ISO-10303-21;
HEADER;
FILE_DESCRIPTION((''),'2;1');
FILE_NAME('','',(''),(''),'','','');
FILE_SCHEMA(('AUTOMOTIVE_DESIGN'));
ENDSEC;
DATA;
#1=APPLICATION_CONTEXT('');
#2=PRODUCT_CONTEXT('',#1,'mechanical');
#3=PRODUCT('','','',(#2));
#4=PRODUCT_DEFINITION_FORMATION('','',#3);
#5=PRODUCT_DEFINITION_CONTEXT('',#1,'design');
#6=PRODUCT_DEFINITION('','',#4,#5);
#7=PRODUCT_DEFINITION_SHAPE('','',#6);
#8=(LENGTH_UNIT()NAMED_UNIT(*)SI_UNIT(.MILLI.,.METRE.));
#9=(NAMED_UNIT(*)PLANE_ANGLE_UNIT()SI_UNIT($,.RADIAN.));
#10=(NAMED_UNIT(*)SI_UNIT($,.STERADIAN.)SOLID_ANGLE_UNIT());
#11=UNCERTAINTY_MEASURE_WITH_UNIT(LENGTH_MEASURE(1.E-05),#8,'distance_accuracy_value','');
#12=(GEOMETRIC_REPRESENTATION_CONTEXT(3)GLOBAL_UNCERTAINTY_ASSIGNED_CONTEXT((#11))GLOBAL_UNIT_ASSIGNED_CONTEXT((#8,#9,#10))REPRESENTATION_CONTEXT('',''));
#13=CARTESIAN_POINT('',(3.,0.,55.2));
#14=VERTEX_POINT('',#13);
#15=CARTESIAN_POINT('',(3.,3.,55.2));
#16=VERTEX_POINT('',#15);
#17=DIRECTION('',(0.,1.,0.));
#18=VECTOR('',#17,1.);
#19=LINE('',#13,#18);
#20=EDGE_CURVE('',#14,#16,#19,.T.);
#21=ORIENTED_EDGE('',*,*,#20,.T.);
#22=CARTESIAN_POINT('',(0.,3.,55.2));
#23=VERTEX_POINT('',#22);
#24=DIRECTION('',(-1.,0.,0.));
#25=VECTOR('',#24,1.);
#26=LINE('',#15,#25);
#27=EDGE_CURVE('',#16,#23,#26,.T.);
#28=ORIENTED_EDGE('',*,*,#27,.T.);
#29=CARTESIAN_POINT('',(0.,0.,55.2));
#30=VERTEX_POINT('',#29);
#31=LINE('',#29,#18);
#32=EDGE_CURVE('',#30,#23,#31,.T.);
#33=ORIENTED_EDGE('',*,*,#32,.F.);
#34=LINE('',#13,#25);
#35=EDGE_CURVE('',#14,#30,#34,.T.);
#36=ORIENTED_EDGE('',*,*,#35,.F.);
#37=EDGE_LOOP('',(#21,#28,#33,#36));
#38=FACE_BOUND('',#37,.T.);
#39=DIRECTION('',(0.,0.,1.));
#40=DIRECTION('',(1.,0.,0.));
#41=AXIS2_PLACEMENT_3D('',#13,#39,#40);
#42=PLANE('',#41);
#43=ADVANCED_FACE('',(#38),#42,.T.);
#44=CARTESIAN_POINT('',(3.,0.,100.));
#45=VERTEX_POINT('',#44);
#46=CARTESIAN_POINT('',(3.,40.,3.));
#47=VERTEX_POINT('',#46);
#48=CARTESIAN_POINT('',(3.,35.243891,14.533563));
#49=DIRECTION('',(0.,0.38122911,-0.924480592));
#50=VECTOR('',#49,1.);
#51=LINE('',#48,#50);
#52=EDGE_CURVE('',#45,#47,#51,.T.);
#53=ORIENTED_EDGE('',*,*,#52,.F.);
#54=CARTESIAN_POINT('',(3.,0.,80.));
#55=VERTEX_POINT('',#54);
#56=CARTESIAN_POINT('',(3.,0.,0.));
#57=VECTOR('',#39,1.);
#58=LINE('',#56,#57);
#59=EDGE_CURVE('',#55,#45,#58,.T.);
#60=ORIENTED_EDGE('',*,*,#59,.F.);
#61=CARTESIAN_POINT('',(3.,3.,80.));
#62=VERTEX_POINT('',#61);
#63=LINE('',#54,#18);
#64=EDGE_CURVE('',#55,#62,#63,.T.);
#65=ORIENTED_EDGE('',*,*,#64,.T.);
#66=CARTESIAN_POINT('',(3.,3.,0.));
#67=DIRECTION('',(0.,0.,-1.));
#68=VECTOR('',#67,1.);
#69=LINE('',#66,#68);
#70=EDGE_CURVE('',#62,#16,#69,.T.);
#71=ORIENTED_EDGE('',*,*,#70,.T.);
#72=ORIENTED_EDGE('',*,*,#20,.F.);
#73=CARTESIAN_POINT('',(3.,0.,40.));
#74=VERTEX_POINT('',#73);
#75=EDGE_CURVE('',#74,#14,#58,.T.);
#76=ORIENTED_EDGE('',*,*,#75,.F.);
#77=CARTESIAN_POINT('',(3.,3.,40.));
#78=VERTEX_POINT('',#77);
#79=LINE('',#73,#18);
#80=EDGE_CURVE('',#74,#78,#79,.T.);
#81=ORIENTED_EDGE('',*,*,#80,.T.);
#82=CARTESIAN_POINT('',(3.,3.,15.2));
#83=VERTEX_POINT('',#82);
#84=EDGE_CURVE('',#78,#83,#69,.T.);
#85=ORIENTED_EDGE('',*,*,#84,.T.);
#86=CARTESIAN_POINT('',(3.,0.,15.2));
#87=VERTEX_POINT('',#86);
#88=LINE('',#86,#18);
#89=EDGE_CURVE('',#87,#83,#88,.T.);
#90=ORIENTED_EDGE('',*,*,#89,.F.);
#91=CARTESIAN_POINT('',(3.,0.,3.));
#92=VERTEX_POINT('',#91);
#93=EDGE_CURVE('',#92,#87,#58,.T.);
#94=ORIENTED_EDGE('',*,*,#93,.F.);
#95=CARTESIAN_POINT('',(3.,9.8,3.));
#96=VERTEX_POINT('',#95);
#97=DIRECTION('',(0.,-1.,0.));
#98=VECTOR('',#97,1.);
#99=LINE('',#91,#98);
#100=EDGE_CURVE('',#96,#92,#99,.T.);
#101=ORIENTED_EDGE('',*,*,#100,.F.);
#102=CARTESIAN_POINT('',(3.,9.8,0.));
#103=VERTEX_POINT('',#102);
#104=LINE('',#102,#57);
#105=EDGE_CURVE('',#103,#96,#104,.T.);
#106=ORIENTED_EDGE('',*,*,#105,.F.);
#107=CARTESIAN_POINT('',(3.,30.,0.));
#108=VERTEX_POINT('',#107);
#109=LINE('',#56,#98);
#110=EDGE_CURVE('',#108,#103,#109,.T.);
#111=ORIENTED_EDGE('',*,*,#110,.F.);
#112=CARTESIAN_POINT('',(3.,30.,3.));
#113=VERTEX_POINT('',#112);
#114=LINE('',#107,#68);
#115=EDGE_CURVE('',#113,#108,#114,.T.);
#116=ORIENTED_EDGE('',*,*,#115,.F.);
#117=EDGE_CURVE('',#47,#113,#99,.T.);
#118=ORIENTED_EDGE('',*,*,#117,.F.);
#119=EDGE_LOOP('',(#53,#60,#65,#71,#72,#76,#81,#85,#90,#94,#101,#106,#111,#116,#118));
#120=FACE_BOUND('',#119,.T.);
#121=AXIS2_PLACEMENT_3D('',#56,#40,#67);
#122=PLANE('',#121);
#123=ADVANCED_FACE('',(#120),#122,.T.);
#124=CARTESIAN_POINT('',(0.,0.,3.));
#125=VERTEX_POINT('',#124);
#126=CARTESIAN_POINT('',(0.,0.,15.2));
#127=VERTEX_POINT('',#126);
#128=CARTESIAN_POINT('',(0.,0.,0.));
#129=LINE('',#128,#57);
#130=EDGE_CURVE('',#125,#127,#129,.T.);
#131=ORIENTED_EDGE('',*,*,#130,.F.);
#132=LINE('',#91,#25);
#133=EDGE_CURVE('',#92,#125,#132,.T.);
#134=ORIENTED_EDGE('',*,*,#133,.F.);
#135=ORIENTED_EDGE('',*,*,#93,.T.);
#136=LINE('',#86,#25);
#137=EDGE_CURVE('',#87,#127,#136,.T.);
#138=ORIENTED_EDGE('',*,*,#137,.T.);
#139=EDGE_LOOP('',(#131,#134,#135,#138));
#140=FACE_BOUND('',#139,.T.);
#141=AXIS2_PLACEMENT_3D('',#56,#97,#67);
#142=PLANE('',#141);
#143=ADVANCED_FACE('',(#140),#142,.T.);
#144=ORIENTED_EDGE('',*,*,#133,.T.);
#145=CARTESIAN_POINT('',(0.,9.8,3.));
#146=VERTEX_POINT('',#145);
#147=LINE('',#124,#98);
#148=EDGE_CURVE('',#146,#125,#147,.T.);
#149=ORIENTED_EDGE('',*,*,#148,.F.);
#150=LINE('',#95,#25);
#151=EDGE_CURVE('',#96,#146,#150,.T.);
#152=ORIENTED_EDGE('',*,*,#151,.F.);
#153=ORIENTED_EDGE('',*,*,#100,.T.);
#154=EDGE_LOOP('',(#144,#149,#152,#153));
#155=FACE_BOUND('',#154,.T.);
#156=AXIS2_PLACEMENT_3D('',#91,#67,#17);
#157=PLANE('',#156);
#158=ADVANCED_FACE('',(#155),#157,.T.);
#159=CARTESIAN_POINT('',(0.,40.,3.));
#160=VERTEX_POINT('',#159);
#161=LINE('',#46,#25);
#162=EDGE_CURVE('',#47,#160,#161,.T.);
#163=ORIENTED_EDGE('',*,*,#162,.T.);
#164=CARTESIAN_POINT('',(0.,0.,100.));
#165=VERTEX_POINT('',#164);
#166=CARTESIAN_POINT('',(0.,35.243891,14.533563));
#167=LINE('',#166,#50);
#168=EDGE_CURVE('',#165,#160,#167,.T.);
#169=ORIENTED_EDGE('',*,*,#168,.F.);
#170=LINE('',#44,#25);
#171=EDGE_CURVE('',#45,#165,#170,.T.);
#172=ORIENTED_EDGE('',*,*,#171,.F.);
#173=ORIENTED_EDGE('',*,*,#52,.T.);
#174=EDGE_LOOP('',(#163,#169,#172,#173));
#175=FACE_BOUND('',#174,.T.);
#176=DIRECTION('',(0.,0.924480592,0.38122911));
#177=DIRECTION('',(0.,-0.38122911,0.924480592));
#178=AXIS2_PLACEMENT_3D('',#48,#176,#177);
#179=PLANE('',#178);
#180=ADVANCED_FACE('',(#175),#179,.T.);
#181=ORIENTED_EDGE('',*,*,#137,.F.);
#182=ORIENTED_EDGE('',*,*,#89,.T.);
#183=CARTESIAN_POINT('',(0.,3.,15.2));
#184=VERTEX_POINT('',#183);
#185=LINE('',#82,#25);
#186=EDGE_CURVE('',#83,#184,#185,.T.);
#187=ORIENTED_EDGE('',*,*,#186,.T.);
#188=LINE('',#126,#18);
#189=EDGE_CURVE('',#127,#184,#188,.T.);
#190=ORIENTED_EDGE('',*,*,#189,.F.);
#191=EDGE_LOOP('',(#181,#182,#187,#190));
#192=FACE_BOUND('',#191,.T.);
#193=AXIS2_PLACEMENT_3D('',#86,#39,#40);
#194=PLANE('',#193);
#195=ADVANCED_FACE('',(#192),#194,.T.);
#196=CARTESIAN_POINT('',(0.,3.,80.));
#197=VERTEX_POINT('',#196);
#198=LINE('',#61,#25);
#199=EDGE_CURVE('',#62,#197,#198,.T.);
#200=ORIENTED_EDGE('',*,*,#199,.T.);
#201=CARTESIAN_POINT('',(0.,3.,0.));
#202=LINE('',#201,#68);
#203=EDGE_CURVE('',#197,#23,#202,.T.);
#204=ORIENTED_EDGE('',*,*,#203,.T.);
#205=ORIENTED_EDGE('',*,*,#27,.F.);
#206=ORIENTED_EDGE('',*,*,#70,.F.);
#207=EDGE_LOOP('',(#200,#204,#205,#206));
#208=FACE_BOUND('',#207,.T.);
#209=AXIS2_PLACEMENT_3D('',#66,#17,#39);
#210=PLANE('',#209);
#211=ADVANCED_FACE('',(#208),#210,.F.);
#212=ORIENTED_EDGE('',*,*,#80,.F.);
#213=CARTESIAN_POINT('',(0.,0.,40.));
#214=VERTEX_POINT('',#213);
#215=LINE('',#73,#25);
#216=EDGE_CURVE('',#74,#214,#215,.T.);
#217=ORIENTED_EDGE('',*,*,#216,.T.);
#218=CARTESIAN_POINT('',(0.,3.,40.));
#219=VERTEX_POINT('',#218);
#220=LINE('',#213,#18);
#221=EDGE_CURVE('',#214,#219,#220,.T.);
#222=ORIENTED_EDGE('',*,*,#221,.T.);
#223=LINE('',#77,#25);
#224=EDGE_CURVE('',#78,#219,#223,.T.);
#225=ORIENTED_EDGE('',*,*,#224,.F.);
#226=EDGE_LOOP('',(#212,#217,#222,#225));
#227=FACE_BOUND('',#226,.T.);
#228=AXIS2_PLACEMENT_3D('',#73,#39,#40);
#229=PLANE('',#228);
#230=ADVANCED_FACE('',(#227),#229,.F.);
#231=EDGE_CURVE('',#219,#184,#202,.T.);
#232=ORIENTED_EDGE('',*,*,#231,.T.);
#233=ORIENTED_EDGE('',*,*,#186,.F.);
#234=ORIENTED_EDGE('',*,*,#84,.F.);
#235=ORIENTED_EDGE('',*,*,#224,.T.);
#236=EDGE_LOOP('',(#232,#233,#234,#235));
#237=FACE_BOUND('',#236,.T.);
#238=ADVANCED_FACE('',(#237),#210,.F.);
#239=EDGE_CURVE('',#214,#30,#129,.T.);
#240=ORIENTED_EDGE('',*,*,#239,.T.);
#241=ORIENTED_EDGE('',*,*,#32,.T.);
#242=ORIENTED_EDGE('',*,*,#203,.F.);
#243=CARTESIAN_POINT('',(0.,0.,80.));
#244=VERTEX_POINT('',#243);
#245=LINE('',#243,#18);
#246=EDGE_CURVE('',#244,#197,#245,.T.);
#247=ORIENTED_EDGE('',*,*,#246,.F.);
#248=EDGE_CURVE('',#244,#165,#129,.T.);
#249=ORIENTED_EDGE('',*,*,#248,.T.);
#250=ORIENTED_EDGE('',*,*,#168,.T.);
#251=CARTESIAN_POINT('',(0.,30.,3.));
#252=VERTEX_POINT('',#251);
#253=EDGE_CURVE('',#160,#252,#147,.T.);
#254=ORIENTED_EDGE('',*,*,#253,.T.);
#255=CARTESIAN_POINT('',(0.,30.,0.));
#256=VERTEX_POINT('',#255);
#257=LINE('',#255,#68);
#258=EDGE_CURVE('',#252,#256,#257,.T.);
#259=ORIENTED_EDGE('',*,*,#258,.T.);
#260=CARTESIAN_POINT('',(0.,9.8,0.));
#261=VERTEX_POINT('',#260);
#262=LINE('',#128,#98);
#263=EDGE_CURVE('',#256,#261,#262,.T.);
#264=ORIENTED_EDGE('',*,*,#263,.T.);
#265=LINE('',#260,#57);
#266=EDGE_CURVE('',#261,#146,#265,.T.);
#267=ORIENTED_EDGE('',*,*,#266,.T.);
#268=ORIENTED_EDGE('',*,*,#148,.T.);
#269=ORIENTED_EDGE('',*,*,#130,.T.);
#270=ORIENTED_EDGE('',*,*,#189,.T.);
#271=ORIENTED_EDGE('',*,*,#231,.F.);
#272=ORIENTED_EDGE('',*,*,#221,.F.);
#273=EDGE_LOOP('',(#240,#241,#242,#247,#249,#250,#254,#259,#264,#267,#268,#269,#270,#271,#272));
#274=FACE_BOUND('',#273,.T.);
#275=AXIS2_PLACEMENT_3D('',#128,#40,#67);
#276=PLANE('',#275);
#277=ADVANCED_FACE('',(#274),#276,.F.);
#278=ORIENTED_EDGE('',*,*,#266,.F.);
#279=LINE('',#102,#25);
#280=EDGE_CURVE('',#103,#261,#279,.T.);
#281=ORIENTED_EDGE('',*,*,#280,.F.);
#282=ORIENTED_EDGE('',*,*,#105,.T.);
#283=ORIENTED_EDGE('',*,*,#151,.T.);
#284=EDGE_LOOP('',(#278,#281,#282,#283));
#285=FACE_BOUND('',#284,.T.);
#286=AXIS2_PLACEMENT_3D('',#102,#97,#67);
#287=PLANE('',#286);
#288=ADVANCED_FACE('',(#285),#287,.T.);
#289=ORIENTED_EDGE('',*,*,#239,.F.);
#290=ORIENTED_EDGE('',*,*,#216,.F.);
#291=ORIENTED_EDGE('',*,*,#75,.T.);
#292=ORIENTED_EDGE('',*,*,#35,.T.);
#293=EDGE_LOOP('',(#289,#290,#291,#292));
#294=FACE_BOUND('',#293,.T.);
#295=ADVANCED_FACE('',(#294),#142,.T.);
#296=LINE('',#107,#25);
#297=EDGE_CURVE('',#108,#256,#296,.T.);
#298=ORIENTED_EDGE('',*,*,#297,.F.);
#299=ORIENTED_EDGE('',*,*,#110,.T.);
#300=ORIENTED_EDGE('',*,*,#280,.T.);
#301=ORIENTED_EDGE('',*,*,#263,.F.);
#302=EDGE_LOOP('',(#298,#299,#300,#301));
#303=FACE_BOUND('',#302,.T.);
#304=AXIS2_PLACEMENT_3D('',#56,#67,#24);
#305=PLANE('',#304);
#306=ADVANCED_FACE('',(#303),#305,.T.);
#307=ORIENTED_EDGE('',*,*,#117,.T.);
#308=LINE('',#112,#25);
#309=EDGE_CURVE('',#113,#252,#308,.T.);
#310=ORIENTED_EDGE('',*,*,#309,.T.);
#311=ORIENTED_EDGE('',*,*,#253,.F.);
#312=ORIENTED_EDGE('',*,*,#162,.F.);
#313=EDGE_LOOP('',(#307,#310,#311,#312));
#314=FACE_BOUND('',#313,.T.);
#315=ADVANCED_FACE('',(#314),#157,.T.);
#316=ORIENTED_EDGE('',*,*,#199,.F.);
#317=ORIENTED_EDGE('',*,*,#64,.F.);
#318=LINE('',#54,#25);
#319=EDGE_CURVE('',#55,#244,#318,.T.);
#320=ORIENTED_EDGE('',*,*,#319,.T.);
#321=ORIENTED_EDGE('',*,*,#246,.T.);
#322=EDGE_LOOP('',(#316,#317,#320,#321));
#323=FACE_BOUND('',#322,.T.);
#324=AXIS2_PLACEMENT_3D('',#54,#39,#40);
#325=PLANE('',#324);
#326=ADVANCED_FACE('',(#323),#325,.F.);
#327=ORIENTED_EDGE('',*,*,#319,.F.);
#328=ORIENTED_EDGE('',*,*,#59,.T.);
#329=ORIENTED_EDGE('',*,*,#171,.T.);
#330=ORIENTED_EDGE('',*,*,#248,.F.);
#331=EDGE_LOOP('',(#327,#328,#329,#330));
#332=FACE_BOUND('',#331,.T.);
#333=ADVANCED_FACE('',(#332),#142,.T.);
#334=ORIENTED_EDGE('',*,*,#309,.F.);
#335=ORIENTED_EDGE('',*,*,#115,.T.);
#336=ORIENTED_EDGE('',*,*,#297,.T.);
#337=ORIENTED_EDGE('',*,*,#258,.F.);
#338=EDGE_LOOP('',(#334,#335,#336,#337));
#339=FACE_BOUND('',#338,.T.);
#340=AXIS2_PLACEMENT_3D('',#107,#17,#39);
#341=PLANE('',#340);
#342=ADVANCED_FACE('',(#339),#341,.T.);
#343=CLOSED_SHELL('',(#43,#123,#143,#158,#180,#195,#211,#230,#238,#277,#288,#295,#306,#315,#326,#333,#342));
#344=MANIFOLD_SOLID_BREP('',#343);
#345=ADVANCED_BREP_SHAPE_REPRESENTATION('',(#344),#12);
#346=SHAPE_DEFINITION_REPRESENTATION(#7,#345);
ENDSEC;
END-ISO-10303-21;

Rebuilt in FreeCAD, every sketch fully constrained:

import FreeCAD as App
import Part
import Sketcher

V = App.Vector
Q = App.Units.Quantity

doc = App.newDocument("Part")
body = doc.addObject("PartDesign::Body", "Body")

sketch1 = body.newObject("Sketcher::SketchObject", "Sketch")
sketch1.AttachmentSupport = (doc.getObject("YZ_Plane"), [""])
sketch1.MapMode = "FlatFace"
sketch1.addGeometry(Part.LineSegment(V(30, 0, 0), V(30, 3, 0)), False)
sketch1.addGeometry(Part.LineSegment(V(30, 3, 0), V(40, 3, 0)), False)
sketch1.addGeometry(Part.LineSegment(V(40, 3, 0), V(0, 100, 0)), False)
sketch1.addGeometry(Part.LineSegment(V(0, 100, 0), V(0, 80, 0)), False)
sketch1.addGeometry(Part.LineSegment(V(0, 80, 0), V(3, 80, 0)), False)
sketch1.addGeometry(Part.LineSegment(V(3, 80, 0), V(3, 55.2, 0)), False)
sketch1.addGeometry(Part.LineSegment(V(3, 55.2, 0), V(0, 55.2, 0)), False)
sketch1.addGeometry(Part.LineSegment(V(0, 55.2, 0), V(0, 40, 0)), False)
sketch1.addGeometry(Part.LineSegment(V(0, 40, 0), V(3, 40, 0)), False)
sketch1.addGeometry(Part.LineSegment(V(3, 40, 0), V(3, 15.2, 0)), False)
sketch1.addGeometry(Part.LineSegment(V(3, 15.2, 0), V(0, 15.2, 0)), False)
sketch1.addGeometry(Part.LineSegment(V(0, 15.2, 0), V(0, 3, 0)), False)
sketch1.addGeometry(Part.LineSegment(V(0, 3, 0), V(9.8, 3, 0)), False)
sketch1.addGeometry(Part.LineSegment(V(9.8, 3, 0), V(9.8, 0, 0)), False)
sketch1.addGeometry(Part.LineSegment(V(9.8, 0, 0), V(30, 0, 0)), False)
sketch1.addConstraint(Sketcher.Constraint("Coincident", 0, 2, 1, 1))
sketch1.addConstraint(Sketcher.Constraint("Coincident", 1, 2, 2, 1))
sketch1.addConstraint(Sketcher.Constraint("Coincident", 2, 2, 3, 1))
sketch1.addConstraint(Sketcher.Constraint("Coincident", 3, 2, 4, 1))
sketch1.addConstraint(Sketcher.Constraint("Coincident", 4, 2, 5, 1))
sketch1.addConstraint(Sketcher.Constraint("Coincident", 5, 2, 6, 1))
sketch1.addConstraint(Sketcher.Constraint("Coincident", 6, 2, 7, 1))
sketch1.addConstraint(Sketcher.Constraint("Coincident", 7, 2, 8, 1))
sketch1.addConstraint(Sketcher.Constraint("Coincident", 8, 2, 9, 1))
sketch1.addConstraint(Sketcher.Constraint("Coincident", 9, 2, 10, 1))
sketch1.addConstraint(Sketcher.Constraint("Coincident", 10, 2, 11, 1))
sketch1.addConstraint(Sketcher.Constraint("Coincident", 11, 2, 12, 1))
sketch1.addConstraint(Sketcher.Constraint("Coincident", 12, 2, 13, 1))
sketch1.addConstraint(Sketcher.Constraint("Coincident", 13, 2, 14, 1))
sketch1.addConstraint(Sketcher.Constraint("Coincident", 14, 2, 0, 1))
sketch1.addConstraint(Sketcher.Constraint("Vertical", 0))
sketch1.addConstraint(Sketcher.Constraint("Horizontal", 1))
sketch1.addConstraint(Sketcher.Constraint("Vertical", 3))
sketch1.addConstraint(Sketcher.Constraint("Horizontal", 4))
sketch1.addConstraint(Sketcher.Constraint("Vertical", 5))
sketch1.addConstraint(Sketcher.Constraint("Horizontal", 6))
sketch1.addConstraint(Sketcher.Constraint("Vertical", 7))
sketch1.addConstraint(Sketcher.Constraint("Horizontal", 8))
sketch1.addConstraint(Sketcher.Constraint("Vertical", 9))
sketch1.addConstraint(Sketcher.Constraint("Horizontal", 10))
sketch1.addConstraint(Sketcher.Constraint("Vertical", 11))
sketch1.addConstraint(Sketcher.Constraint("Horizontal", 12))
sketch1.addConstraint(Sketcher.Constraint("Vertical", 13))
sketch1.addConstraint(Sketcher.Constraint("Horizontal", 14))
sketch1.addConstraint(Sketcher.Constraint("PointOnObject", 2, 2, -2))
sketch1.addConstraint(Sketcher.Constraint("PointOnObject", 6, 2, -2))
sketch1.addConstraint(Sketcher.Constraint("PointOnObject", 10, 2, -2))
sketch1.addConstraint(Sketcher.Constraint("PointOnObject", 13, 2, -1))
sketch1.addConstraint(Sketcher.Constraint("Horizontal", 1, 2, 11, 2))
sketch1.addConstraint(Sketcher.Constraint("Vertical", 5, 2, 8, 2))
sketch1.addConstraint(Sketcher.Constraint("Equal", 10, 0))
sketch1.addConstraint(Sketcher.Constraint("Equal", 5, 9))
sketch1.addConstraint(Sketcher.Constraint("DistanceX", 1, 1, 1, 2, Q("10 mm")))
sketch1.addConstraint(Sketcher.Constraint("DistanceX", 4, 1, 4, 2, Q("3 mm")))
sketch1.addConstraint(Sketcher.Constraint("DistanceY", 3, 2, 3, 1, Q("20 mm")))
sketch1.addConstraint(Sketcher.Constraint("DistanceX", 12, 1, 12, 2, Q("9.8 mm")))
sketch1.addConstraint(Sketcher.Constraint("DistanceX", 14, 1, 14, 2, Q("20.2 mm")))
sketch1.addConstraint(Sketcher.Constraint("DistanceY", 5, 2, 5, 1, Q("24.8 mm")))
sketch1.addConstraint(Sketcher.Constraint("DistanceY", 7, 2, 7, 1, Q("15.2 mm")))
sketch1.addConstraint(Sketcher.Constraint("DistanceY", 11, 2, 11, 1, Q("12.2 mm")))
pad1 = body.newObject("PartDesign::Pad", "Pad")
pad1.Profile = sketch1
pad1.Length = 3

doc.recompute()
